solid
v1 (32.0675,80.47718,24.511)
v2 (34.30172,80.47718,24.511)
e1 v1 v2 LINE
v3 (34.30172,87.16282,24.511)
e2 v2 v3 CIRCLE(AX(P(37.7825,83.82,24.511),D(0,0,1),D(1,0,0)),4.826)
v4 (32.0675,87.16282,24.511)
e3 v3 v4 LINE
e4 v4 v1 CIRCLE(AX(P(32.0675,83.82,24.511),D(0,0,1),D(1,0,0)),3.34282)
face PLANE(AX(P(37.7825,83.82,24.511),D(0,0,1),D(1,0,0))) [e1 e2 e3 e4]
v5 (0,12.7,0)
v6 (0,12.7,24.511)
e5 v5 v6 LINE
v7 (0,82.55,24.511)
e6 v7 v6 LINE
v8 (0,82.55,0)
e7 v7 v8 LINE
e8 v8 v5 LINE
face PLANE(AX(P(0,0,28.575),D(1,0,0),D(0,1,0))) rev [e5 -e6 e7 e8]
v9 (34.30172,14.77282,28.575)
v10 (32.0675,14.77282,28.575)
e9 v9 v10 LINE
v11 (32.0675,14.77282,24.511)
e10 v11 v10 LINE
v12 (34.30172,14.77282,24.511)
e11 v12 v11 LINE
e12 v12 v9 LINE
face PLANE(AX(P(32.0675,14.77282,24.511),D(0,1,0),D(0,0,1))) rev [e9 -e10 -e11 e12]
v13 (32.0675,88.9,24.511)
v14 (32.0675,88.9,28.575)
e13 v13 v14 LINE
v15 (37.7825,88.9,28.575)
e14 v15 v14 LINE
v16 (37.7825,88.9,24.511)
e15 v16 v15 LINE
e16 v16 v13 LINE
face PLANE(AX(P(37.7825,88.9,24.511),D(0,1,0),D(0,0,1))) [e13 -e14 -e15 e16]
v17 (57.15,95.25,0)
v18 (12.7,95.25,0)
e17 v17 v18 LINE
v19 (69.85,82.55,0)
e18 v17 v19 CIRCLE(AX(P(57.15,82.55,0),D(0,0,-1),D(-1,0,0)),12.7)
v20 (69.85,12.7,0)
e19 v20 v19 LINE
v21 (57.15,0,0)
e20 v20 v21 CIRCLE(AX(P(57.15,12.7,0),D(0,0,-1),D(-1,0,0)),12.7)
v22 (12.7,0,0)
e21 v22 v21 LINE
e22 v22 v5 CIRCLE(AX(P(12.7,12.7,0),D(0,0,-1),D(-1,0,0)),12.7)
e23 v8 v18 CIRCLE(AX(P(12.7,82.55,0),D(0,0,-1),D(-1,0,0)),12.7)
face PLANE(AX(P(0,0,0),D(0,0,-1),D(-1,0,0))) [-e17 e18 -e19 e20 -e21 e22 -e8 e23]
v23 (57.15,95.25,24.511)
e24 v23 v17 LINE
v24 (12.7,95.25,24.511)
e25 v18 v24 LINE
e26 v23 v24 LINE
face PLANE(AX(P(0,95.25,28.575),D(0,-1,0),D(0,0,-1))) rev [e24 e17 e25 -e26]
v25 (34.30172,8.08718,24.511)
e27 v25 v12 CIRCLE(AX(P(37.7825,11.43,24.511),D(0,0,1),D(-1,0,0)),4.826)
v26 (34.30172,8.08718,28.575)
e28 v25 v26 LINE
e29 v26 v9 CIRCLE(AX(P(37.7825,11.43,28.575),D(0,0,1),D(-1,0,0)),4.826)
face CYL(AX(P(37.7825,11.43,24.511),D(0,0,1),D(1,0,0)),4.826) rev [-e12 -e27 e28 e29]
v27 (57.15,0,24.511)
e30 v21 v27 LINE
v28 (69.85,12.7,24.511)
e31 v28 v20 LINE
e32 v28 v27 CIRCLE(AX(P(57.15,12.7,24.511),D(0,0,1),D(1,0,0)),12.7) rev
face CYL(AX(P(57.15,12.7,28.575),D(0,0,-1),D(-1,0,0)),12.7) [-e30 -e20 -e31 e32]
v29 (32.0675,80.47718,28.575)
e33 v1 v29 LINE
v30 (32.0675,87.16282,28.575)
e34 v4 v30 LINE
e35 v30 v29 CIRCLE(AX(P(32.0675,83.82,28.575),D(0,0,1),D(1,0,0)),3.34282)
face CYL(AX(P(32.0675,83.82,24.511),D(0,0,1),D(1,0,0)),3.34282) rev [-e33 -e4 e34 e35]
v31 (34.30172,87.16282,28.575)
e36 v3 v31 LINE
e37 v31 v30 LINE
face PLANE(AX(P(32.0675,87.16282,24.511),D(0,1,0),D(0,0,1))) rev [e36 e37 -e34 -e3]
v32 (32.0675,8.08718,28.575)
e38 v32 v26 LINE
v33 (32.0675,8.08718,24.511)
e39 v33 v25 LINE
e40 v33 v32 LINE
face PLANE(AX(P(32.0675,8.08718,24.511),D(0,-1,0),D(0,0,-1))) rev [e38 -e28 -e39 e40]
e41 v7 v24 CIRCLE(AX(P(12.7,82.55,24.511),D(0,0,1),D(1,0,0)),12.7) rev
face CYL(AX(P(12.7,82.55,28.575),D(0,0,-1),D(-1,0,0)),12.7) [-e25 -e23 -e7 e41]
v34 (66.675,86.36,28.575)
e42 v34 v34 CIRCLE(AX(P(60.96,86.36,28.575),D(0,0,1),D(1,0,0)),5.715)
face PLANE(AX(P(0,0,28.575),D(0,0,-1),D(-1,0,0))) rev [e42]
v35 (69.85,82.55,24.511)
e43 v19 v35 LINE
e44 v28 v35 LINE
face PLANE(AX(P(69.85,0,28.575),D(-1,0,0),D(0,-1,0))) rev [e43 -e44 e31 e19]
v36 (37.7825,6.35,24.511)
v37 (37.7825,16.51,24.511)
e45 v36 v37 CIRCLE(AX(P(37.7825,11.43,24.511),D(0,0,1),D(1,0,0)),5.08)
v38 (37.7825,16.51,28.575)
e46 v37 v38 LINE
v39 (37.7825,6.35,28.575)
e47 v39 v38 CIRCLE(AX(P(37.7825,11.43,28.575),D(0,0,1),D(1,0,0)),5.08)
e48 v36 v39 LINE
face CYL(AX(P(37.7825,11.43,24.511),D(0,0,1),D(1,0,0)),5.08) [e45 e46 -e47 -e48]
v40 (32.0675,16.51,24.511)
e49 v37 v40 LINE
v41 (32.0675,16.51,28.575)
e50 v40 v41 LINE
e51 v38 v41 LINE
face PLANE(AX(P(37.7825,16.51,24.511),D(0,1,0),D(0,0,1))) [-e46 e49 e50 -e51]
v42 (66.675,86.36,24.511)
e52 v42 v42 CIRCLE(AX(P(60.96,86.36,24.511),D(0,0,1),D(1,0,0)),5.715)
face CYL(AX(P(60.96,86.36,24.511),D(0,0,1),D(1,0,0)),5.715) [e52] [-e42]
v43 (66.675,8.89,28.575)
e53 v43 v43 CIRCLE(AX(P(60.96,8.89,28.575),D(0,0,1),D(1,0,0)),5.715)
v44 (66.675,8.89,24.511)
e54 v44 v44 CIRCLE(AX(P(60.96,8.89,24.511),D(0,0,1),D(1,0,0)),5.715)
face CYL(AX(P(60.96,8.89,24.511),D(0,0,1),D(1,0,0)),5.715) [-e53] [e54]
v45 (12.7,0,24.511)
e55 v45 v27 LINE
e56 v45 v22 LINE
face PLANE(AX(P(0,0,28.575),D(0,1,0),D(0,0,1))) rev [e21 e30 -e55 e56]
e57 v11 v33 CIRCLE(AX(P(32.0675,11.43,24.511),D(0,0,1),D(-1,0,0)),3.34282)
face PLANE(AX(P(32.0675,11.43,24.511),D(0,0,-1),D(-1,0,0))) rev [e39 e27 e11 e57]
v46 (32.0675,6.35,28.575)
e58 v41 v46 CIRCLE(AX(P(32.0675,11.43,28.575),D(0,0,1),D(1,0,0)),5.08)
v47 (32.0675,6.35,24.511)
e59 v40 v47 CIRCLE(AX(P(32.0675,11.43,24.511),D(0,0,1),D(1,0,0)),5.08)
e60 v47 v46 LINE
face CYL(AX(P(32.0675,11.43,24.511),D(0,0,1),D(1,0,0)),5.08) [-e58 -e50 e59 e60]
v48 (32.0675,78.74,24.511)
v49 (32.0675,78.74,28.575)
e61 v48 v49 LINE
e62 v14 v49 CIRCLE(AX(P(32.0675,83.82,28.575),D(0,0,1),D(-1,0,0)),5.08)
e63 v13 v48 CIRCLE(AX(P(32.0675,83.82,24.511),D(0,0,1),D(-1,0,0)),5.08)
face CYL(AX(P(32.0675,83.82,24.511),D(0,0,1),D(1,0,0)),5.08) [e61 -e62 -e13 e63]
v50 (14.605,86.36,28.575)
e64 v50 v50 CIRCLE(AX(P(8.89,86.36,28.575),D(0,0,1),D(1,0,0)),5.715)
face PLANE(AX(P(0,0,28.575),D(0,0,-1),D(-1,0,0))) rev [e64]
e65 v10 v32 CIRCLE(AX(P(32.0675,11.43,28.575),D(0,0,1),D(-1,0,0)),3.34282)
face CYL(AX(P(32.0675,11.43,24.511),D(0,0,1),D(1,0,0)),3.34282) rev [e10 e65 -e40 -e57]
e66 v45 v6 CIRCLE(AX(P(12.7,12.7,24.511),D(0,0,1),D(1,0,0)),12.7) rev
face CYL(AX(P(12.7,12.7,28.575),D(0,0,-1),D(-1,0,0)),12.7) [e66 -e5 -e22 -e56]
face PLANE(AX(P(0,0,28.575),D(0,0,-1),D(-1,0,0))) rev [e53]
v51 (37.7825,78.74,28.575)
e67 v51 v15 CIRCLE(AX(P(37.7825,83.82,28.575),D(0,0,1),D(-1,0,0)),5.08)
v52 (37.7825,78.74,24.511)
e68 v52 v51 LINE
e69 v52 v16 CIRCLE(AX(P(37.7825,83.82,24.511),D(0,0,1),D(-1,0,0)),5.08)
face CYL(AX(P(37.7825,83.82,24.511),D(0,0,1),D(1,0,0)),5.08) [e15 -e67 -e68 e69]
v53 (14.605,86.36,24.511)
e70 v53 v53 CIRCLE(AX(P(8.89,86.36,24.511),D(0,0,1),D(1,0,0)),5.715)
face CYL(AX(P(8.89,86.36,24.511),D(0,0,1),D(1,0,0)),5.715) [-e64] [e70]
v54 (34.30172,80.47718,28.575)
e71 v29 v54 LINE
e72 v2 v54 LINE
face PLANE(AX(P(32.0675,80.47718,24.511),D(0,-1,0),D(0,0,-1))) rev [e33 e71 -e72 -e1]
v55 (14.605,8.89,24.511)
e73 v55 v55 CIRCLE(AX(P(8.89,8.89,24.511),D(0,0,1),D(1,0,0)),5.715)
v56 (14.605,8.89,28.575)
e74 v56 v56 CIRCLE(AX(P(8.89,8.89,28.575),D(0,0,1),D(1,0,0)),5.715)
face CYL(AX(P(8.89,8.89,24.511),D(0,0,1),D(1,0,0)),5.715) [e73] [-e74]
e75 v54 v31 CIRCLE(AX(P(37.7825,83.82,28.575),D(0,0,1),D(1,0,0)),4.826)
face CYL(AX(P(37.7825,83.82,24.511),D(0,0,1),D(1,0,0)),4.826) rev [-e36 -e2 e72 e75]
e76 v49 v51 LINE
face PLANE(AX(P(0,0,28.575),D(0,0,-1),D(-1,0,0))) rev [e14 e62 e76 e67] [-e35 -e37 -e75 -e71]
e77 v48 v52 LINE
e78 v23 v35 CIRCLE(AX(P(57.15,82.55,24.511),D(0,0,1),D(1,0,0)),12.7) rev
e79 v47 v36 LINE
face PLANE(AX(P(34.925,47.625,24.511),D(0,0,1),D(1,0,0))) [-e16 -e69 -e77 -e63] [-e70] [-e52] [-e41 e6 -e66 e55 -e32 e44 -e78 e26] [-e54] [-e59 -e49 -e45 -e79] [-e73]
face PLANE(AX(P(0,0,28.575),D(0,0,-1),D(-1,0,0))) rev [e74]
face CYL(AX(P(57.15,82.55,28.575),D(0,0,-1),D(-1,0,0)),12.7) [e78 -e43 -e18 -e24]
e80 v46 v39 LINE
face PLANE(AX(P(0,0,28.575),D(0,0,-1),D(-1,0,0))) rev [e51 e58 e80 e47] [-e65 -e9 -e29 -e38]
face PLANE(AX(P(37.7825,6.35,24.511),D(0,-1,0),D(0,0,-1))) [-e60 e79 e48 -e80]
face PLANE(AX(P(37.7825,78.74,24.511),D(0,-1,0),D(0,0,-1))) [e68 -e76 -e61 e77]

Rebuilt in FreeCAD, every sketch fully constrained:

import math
import FreeCAD as App
import Part
import Sketcher
Q = App.Units.Quantity


def edges_at(feature, points):
    """Names of the edges that pass closest to the given points."""
    edges = feature.Shape.Edges
    near = lambda p: min(range(len(edges)), key=lambda i: edges[i].distToShape(Part.Vertex(*p))[0])
    return sorted({f"Edge{near(p) + 1}" for p in points})


def add_polygon(sketch, points):
    """Adds a closed chain of lines whose ends are joined by coincident constraints."""
    first, n = sketch.GeometryCount, len(points)
    for a, b in zip(points, points[1:] + points[:1]):
        sketch.addGeometry(Part.LineSegment(App.Vector(*a, 0), App.Vector(*b, 0)), False)
    for i in range(n):
        sketch.addConstraint(Sketcher.Constraint("Coincident", first + i, 2, first + (i + 1) % n, 1))

doc = App.newDocument("Part")
body = doc.addObject("PartDesign::Body", "Body")

# Sketch on XY plane
sketch1 = body.newObject("Sketcher::SketchObject", "Sketch")
sketch1.AttachmentSupport = (doc.getObject("XY_Plane"), [""])
sketch1.MapMode = "FlatFace"
add_polygon(sketch1, [(0, 95), (0, 0), (70, 0), (70, 95)])  # lines 0-3
sketch1.addConstraint(Sketcher.Constraint("Vertical", 0))
sketch1.addConstraint(Sketcher.Constraint("Horizontal", 1))
sketch1.addConstraint(Sketcher.Constraint("Vertical", 2))
sketch1.addConstraint(Sketcher.Constraint("Horizontal", 3))
sketch1.addConstraint(Sketcher.Constraint("Coincident", 0, 2, -1, 1))
sketch1.addConstraint(Sketcher.Constraint("DistanceX", 1, 1, 1, 2, Q("2.75 in")))
sketch1.addConstraint(Sketcher.Constraint("DistanceY", 0, 2, 0, 1, Q("3.75 in")))
pad1 = body.newObject("PartDesign::Pad", "Pad")
pad1.Profile = sketch1
pad1.Length = Q("1.125 in")
doc.recompute()

fillet = body.newObject("PartDesign::Fillet", "Fillet")
fillet.Base = (pad1, edges_at(pad1, [
    (0, 95.25, 14.287),
    (69.85, 95.25, 14.287),
    (69.85, 0, 14.287),
    (0, 0, 14.287),
]))
fillet.Radius = Q("0.5 in")

# Sketch on XY plane
sketch2 = body.newObject("Sketcher::SketchObject", "Sketch001")
sketch2.AttachmentSupport = (doc.getObject("XY_Plane"), [""])
sketch2.MapMode = "FlatFace"
sketch2.AttachmentOffset = App.Placement(App.Vector(0, 0, 1.125 * 25.4), App.Rotation())
add_polygon(sketch2, [(-13.2, 108.4), (-13.2, -13.2), (83, -13.2), (83, 108.4)])  # lines 0-3
sketch2.addGeometry(Part.Circle(App.Vector(8.9, 8.9, 0), App.Vector(0, 0, 1), 5.7), False)  # 4
sketch2.addGeometry(Part.ArcOfCircle(Part.Circle(App.Vector(37.8, 11.4, 0), App.Vector(0, 0, 1), 5.1), math.radians(-90), math.radians(90)), False)  # 5
sketch2.addGeometry(Part.LineSegment(App.Vector(37.8, 6.3, 0), App.Vector(32.1, 6.3, 0)), False)  # 6
sketch2.addGeometry(Part.ArcOfCircle(Part.Circle(App.Vector(32.1, 11.4, 0), App.Vector(0, 0, 1), 5.1), math.radians(90), math.radians(270)), False)  # 7
sketch2.addGeometry(Part.LineSegment(App.Vector(32.1, 16.5, 0), App.Vector(37.8, 16.5, 0)), False)  # 8
sketch2.addGeometry(Part.Circle(App.Vector(61, 8.9, 0), App.Vector(0, 0, 1), 5.7), False)  # 9
sketch2.addGeometry(Part.Circle(App.Vector(8.9, 86.4, 0), App.Vector(0, 0, 1), 5.7), False)  # 10
sketch2.addGeometry(Part.ArcOfCircle(Part.Circle(App.Vector(37.8, 83.8, 0), App.Vector(0, 0, 1), 5.1), math.radians(-90), math.radians(90)), False)  # 11
sketch2.addGeometry(Part.LineSegment(App.Vector(37.8, 78.7, 0), App.Vector(32.1, 78.7, 0)), False)  # 12
sketch2.addGeometry(Part.ArcOfCircle(Part.Circle(App.Vector(32.1, 83.8, 0), App.Vector(0, 0, 1), 5.1), math.radians(90), math.radians(270)), False)  # 13
sketch2.addGeometry(Part.LineSegment(App.Vector(32.1, 88.9, 0), App.Vector(37.8, 88.9, 0)), False)  # 14
sketch2.addGeometry(Part.Circle(App.Vector(61, 86.4, 0), App.Vector(0, 0, 1), 5.7), False)  # 15
sketch2.addGeometry(Part.LineSegment(App.Vector(34.3, 14.8, 0), App.Vector(32.1, 14.8, 0)), False)  # 16
sketch2.addGeometry(Part.ArcOfCircle(Part.Circle(App.Vector(32.1, 11.4, 0), App.Vector(0, 0, 1), 3.3), math.radians(90), math.radians(270)), False)  # 17
sketch2.addGeometry(Part.LineSegment(App.Vector(32.1, 8.1, 0), App.Vector(34.3, 8.1, 0)), False)  # 18
sketch2.addGeometry(Part.ArcOfCircle(Part.Circle(App.Vector(37.8, 11.4, 0), App.Vector(0, 0, 1), 4.8), math.radians(-136), math.radians(136)), False)  # 19
sketch2.addGeometry(Part.LineSegment(App.Vector(32.1, 80.5, 0), App.Vector(34.3, 80.5, 0)), False)  # 20
sketch2.addGeometry(Part.ArcOfCircle(Part.Circle(App.Vector(37.8, 83.8, 0), App.Vector(0, 0, 1), 4.8), math.radians(-136), math.radians(136)), False)  # 21
sketch2.addGeometry(Part.LineSegment(App.Vector(34.3, 87.2, 0), App.Vector(32.1, 87.2, 0)), False)  # 22
sketch2.addGeometry(Part.ArcOfCircle(Part.Circle(App.Vector(32.1, 83.8, 0), App.Vector(0, 0, 1), 3.3), math.radians(90), math.radians(270)), False)  # 23
sketch2.addConstraint(Sketcher.Constraint("Tangent", 5, 1, 6, 1))
sketch2.addConstraint(Sketcher.Constraint("Tangent", 6, 2, 7, 2))
sketch2.addConstraint(Sketcher.Constraint("Tangent", 7, 1, 8, 1))
sketch2.addConstraint(Sketcher.Constraint("Tangent", 8, 2, 5, 2))
sketch2.addConstraint(Sketcher.Constraint("Tangent", 11, 1, 12, 1))
sketch2.addConstraint(Sketcher.Constraint("Tangent", 12, 2, 13, 2))
sketch2.addConstraint(Sketcher.Constraint("Tangent", 13, 1, 14, 1))
sketch2.addConstraint(Sketcher.Constraint("Tangent", 14, 2, 11, 2))
sketch2.addConstraint(Sketcher.Constraint("Tangent", 16, 2, 17, 1))
sketch2.addConstraint(Sketcher.Constraint("Tangent", 17, 2, 18, 1))
sketch2.addConstraint(Sketcher.Constraint("Coincident", 18, 2, 19, 1))
sketch2.addConstraint(Sketcher.Constraint("Coincident", 19, 2, 16, 1))
sketch2.addConstraint(Sketcher.Constraint("Coincident", 20, 2, 21, 1))
sketch2.addConstraint(Sketcher.Constraint("Coincident", 21, 2, 22, 1))
sketch2.addConstraint(Sketcher.Constraint("Tangent", 22, 2, 23, 1))
sketch2.addConstraint(Sketcher.Constraint("Tangent", 23, 2, 20, 1))
sketch2.addConstraint(Sketcher.Constraint("Vertical", 0))
sketch2.addConstraint(Sketcher.Constraint("Horizontal", 1))
sketch2.addConstraint(Sketcher.Constraint("Vertical", 2))
sketch2.addConstraint(Sketcher.Constraint("Horizontal", 3))
sketch2.addConstraint(Sketcher.Constraint("Horizontal", 6))
sketch2.addConstraint(Sketcher.Constraint("Horizontal", 8))
sketch2.addConstraint(Sketcher.Constraint("Horizontal", 12))
sketch2.addConstraint(Sketcher.Constraint("Horizontal", 14))
sketch2.addConstraint(Sketcher.Constraint("Horizontal", 16))
sketch2.addConstraint(Sketcher.Constraint("Horizontal", 18))
sketch2.addConstraint(Sketcher.Constraint("Horizontal", 20))
sketch2.addConstraint(Sketcher.Constraint("Horizontal", 22))
sketch2.addConstraint(Sketcher.Constraint("Coincident", 17, 3, 7, 3))
sketch2.addConstraint(Sketcher.Constraint("Coincident", 19, 3, 5, 3))
sketch2.addConstraint(Sketcher.Constraint("Coincident", 21, 3, 11, 3))
sketch2.addConstraint(Sketcher.Constraint("Coincident", 23, 3, 13, 3))
sketch2.addConstraint(Sketcher.Constraint("Equal", 4, 9))
sketch2.addConstraint(Sketcher.Constraint("Equal", 9, 10))
sketch2.addConstraint(Sketcher.Constraint("Equal", 7, 11))
sketch2.addConstraint(Sketcher.Constraint("Equal", 10, 15))
sketch2.addConstraint(Sketcher.Constraint("Equal", 19, 21))
sketch2.addConstraint(Sketcher.Constraint("Equal", 17, 23))
sketch2.addConstraint(Sketcher.Constraint("Horizontal", 4, 3, 9, 3))
sketch2.addConstraint(Sketcher.Constraint("Horizontal", 10, 3, 15, 3))
sketch2.addConstraint(Sketcher.Constraint("Vertical", 4, 3, 10, 3))
sketch2.addConstraint(Sketcher.Constraint("Vertical", 5, 3, 11, 3))
sketch2.addConstraint(Sketcher.Constraint("Vertical", 7, 3, 13, 3))
sketch2.addConstraint(Sketcher.Constraint("Vertical", 9, 3, 15, 3))
sketch2.addConstraint(Sketcher.Constraint("Radius", 5, Q("0.2 in")))
sketch2.addConstraint(Sketcher.Constraint("Diameter", 4, Q("0.45 in")))
sketch2.addConstraint(Sketcher.Constraint("Radius", 19, Q("0.19 in")))
sketch2.addConstraint(Sketcher.Constraint("DistanceX", -1, 1, 9, 3, Q("2.4 in")))
sketch2.addConstraint(Sketcher.Constraint("DistanceY", -1, 1, 10, 3, Q("3.4 in")))
sketch2.addConstraint(Sketcher.Constraint("DistanceY", -1, 1, 11, 3, Q("3.3 in")))
sketch2.addConstraint(Sketcher.Constraint("DistanceY", 4, 3, 5, 3, Q("0.1 in")))
sketch2.addConstraint(Sketcher.Constraint("DistanceX", 6, 2, 6, 1, Q("0.225 in")))
sketch2.addConstraint(Sketcher.Constraint("DistanceX", -1, 1, 4, 3, Q("0.35 in")))
sketch2.addConstraint(Sketcher.Constraint("DistanceY", -1, 1, 4, 3, Q("0.35 in")))
sketch2.addConstraint(Sketcher.Constraint("Radius", 17, 3.34282))
sketch2.addConstraint(Sketcher.Constraint("DistanceX", 1, 1, 1, 2, 96.154))
sketch2.addConstraint(Sketcher.Constraint("DistanceY", 0, 2, 0, 1, 121.554))
sketch2.addConstraint(Sketcher.Constraint("DistanceX", -1, 1, 5, 3, Q("1.4875 in")))
sketch2.addConstraint(Sketcher.Constraint("DistanceX", 0, 2, -1, 1, 13.152))
sketch2.addConstraint(Sketcher.Constraint("DistanceY", 0, 2, -1, 1, 13.152))
pocket1 = body.newObject("PartDesign::Pocket", "Pocket")
pocket1.Profile = sketch2
pocket1.Length = Q("0.16 in")

doc.recompute()
